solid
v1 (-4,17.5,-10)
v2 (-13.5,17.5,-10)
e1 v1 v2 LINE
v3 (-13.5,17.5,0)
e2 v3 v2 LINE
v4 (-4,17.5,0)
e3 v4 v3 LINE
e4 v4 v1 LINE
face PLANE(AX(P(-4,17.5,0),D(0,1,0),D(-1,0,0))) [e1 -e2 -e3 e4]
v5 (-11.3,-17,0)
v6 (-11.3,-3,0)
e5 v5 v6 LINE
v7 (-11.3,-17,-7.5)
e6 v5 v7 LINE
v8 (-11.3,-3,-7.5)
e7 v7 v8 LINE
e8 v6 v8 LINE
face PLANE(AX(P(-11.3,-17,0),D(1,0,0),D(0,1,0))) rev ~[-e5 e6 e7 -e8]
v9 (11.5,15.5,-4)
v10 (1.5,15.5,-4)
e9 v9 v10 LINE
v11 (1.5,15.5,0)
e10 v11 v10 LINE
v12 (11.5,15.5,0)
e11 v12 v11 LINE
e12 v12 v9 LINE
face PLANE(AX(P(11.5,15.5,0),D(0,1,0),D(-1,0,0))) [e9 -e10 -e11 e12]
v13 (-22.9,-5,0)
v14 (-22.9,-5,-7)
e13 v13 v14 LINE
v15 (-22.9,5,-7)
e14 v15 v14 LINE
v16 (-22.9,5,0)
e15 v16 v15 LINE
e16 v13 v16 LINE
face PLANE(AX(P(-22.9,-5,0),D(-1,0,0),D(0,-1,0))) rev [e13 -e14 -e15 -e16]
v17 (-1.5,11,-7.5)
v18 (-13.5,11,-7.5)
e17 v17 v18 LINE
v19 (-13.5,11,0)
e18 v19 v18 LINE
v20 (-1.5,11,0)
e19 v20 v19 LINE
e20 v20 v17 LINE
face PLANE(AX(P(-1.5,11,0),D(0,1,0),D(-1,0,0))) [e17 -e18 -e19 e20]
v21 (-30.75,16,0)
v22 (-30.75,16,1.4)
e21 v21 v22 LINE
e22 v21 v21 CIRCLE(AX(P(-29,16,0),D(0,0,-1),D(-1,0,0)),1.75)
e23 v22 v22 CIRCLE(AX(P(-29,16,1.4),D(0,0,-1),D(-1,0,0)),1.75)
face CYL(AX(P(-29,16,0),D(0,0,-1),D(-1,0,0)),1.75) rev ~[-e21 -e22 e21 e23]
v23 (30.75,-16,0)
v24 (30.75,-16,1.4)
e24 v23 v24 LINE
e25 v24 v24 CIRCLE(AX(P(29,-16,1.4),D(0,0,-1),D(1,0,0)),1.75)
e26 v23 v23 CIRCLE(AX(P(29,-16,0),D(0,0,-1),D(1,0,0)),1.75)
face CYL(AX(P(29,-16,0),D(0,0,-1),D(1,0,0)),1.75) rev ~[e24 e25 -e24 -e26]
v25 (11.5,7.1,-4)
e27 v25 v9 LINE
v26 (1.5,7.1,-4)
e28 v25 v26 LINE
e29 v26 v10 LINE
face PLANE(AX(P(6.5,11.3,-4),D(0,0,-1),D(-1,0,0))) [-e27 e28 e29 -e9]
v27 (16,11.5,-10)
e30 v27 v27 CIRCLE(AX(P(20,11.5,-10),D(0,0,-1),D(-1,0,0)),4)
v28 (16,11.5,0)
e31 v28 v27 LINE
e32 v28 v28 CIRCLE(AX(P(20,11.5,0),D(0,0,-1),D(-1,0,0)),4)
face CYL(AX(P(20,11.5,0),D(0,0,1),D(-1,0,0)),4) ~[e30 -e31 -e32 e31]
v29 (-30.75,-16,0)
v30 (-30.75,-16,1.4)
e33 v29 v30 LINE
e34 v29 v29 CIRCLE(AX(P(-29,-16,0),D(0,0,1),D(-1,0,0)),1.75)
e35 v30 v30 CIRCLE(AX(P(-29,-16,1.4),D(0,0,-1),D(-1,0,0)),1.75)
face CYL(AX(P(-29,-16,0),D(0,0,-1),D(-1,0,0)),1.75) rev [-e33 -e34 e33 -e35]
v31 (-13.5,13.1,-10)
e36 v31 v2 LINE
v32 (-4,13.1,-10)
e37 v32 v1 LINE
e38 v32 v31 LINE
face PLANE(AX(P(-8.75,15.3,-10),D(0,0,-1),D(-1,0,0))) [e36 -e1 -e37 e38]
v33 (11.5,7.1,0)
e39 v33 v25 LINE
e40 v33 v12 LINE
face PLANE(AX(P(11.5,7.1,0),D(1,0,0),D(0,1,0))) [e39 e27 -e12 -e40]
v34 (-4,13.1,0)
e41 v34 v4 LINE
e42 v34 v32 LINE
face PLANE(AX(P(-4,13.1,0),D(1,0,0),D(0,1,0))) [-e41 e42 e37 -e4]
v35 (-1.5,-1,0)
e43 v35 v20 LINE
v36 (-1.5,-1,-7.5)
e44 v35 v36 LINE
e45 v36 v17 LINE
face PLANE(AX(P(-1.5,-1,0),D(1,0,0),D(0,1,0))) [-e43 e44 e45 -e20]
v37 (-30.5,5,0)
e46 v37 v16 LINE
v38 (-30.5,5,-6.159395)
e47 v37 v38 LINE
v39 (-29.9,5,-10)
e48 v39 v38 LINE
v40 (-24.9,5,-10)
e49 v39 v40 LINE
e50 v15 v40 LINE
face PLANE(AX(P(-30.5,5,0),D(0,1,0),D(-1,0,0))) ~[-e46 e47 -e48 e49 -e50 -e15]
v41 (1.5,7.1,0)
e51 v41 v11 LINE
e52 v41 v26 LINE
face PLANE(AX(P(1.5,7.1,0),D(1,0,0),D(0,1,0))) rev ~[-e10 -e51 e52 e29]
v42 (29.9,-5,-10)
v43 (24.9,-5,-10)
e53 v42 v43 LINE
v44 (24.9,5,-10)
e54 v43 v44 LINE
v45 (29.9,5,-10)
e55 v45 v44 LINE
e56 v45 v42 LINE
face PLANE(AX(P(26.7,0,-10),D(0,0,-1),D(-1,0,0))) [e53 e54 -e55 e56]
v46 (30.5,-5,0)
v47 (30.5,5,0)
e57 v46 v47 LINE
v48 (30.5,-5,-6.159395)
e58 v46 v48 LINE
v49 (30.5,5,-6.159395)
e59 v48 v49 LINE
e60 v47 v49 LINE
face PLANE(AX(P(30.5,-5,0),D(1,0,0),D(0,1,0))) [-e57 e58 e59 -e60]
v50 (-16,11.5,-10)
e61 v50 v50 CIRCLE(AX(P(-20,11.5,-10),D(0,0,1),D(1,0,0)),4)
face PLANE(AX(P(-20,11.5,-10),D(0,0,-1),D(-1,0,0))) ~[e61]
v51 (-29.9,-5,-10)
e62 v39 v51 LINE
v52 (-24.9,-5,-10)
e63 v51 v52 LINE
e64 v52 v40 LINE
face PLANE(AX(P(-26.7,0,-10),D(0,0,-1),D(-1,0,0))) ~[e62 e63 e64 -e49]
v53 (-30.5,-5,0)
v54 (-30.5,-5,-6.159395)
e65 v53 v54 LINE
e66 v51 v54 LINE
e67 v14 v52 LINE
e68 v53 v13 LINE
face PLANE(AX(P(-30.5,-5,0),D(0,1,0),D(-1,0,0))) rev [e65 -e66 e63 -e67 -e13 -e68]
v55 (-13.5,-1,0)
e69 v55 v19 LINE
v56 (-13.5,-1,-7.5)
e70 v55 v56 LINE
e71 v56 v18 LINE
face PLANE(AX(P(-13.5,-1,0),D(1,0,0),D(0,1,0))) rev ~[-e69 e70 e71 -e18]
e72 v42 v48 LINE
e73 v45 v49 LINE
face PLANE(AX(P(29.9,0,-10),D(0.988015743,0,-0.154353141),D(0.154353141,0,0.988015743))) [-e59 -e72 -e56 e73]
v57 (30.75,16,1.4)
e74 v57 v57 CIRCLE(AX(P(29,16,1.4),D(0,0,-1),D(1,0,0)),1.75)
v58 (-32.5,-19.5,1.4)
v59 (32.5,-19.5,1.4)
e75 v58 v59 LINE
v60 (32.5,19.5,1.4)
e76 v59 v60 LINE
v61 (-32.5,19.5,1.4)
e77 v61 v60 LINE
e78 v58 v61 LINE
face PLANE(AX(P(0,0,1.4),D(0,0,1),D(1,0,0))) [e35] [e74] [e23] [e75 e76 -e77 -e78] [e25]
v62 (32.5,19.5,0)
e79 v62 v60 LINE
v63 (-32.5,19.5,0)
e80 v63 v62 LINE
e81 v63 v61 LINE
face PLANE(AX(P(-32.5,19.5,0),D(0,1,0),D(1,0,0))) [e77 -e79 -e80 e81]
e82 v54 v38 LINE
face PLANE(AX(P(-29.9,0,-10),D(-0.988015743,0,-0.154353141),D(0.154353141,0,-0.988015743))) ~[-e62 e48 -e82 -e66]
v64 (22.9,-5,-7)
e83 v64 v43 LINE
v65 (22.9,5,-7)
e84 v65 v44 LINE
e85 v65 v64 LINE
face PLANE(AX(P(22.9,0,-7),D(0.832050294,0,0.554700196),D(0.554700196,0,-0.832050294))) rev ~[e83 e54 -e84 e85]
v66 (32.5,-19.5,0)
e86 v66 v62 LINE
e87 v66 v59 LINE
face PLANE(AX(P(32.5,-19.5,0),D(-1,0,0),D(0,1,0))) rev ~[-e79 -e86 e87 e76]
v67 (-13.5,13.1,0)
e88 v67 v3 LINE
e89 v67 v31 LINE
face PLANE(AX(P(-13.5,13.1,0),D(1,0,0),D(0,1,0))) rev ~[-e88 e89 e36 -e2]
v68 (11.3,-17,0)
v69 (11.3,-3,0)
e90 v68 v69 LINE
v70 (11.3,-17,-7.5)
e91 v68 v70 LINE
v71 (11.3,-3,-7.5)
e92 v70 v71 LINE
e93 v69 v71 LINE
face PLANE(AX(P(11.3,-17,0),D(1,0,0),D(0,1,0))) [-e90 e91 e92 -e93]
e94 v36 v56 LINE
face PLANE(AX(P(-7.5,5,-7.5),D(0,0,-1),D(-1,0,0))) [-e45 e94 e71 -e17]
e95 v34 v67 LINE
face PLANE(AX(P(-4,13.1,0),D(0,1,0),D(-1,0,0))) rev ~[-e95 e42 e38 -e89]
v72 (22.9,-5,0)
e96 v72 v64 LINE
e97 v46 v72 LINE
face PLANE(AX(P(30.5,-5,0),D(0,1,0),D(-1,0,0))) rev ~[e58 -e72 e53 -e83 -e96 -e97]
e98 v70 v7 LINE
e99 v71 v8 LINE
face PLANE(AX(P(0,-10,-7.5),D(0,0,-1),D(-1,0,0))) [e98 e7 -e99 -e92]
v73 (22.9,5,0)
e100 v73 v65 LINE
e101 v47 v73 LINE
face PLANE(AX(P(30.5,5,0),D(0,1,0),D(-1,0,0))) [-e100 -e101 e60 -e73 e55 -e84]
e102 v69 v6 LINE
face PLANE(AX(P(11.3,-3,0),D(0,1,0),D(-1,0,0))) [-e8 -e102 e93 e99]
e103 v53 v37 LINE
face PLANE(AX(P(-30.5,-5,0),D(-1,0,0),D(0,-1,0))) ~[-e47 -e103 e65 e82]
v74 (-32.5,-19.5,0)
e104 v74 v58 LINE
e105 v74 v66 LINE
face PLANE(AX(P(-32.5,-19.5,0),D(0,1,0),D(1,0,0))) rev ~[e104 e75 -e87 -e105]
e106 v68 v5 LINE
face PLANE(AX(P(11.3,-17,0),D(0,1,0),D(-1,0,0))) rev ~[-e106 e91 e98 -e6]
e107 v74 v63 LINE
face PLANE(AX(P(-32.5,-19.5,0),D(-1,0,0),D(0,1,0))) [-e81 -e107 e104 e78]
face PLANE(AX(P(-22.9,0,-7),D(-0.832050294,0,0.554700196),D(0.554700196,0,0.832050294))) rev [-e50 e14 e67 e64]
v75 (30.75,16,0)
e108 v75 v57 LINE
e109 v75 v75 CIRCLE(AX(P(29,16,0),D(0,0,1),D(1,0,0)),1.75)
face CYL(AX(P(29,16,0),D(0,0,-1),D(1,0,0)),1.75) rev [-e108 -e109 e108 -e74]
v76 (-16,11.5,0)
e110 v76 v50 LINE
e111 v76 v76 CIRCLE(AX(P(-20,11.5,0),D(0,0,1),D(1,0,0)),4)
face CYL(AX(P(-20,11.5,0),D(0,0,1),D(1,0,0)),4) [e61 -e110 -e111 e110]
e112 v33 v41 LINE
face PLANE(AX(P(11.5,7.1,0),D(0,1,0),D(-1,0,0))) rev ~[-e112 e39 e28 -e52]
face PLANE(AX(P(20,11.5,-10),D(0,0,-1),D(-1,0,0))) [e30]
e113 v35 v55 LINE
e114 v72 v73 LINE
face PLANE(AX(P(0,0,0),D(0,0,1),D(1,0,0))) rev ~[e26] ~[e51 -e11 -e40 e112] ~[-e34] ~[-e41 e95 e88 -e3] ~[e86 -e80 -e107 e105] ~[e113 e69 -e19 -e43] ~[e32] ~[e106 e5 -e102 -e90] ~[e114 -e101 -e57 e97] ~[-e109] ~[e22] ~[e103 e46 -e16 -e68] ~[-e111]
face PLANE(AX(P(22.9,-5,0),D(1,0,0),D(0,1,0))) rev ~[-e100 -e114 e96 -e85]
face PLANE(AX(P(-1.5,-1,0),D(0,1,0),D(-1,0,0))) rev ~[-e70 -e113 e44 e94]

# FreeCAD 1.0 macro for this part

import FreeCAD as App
import Part
import Sketcher

V = App.Vector
Q = App.Units.Quantity

doc = App.newDocument("Part")
body = doc.addObject("PartDesign::Body", "Body")

sketch1 = body.newObject("Sketcher::SketchObject", "Sketch")
sketch1.AttachmentSupport = (doc.getObject("XY_Plane"), [""])
sketch1.MapMode = "FlatFace"
sketch1.addGeometry([
    Part.LineSegment(V(-32, 20, 0), V(-32, -20, 0)),
    Part.LineSegment(V(-32, -20, 0), V(32, -20, 0)),
    Part.LineSegment(V(32, -20, 0), V(32, 20, 0)),
    Part.LineSegment(V(32, 20, 0), V(-32, 20, 0)),
], False)
sketch1.addConstraint([
    Sketcher.Constraint("Coincident", 0, 2, 1, 1),
    Sketcher.Constraint("Coincident", 1, 2, 2, 1),
    Sketcher.Constraint("Coincident", 2, 2, 3, 1),
    Sketcher.Constraint("Coincident", 3, 2, 0, 1),
    Sketcher.Constraint("Vertical", 0),
    Sketcher.Constraint("Horizontal", 1),
    Sketcher.Constraint("Vertical", 2),
    Sketcher.Constraint("Horizontal", 3),
    Sketcher.Constraint("Symmetric", 0, 2, 2, 2, -1, 1),
    Sketcher.Constraint("DistanceX", 1, 1, 1, 2, Q("65 mm")),
    Sketcher.Constraint("DistanceY", 0, 2, 0, 1, Q("39 mm")),
])
pad1 = body.newObject("PartDesign::Pad", "Pad")
pad1.Profile = sketch1
pad1.Length = 1.4

sketch2 = body.newObject("Sketcher::SketchObject", "Sketch001")
sketch2.AttachmentSupport = (doc.getObject("XY_Plane"), [""])
sketch2.MapMode = "FlatFace"
sketch2.addGeometry(Part.Circle(V(29, 16, 0), V(0, 0, 1), 1.8), False)
sketch2.addConstraint([
    Sketcher.Constraint("Diameter", 0, Q("3.5 mm")),
    Sketcher.Constraint("DistanceX", -1, 1, 0, 3, Q("29 mm")),
    Sketcher.Constraint("DistanceY", -1, 1, 0, 3, Q("16 mm")),
])
pocket1 = body.newObject("PartDesign::Pocket", "Pocket")
pocket1.Profile = sketch2
pocket1.Type = "ThroughAll"
pocket1.Reversed = True

sketch3 = body.newObject("Sketcher::SketchObject", "Sketch002")
sketch3.AttachmentSupport = (doc.getObject("XY_Plane"), [""])
sketch3.MapMode = "FlatFace"
sketch3.addGeometry(Part.Circle(V(-29, 16, 0), V(0, 0, 1), 1.8), False)
sketch3.addConstraint([
    Sketcher.Constraint("Diameter", 0, Q("3.5 mm")),
    Sketcher.Constraint("DistanceX", 0, 3, -1, 1, Q("29 mm")),
    Sketcher.Constraint("DistanceY", -1, 1, 0, 3, Q("16 mm")),
])
pocket2 = body.newObject("PartDesign::Pocket", "Pocket001")
pocket2.Profile = sketch3
pocket2.Type = "ThroughAll"
pocket2.Reversed = True
doc.recompute()

mirrored = body.newObject("PartDesign::Mirrored", "Mirrored")
mirrored.Originals = [pocket1, pocket2]
mirrored.MirrorPlane = (doc.getObject("XZ_Plane"), [""])
body.Tip = mirrored

sketch4 = body.newObject("Sketcher::SketchObject", "Sketch003")
sketch4.AttachmentSupport = (doc.getObject("XY_Plane"), [""])
sketch4.MapMode = "FlatFace"
sketch4.addGeometry([
    Part.LineSegment(V(30, 5, 0), V(30, -5, 0)),
    Part.LineSegment(V(30, -5, 0), V(23, -5, 0)),
    Part.LineSegment(V(23, -5, 0), V(23, 5, 0)),
    Part.LineSegment(V(23, 5, 0), V(30, 5, 0)),
], False)
sketch4.addConstraint([
    Sketcher.Constraint("Coincident", 0, 2, 1, 1),
    Sketcher.Constraint("Coincident", 1, 2, 2, 1),
    Sketcher.Constraint("Coincident", 2, 2, 3, 1),
    Sketcher.Constraint("Coincident", 3, 2, 0, 1),
    Sketcher.Constraint("Vertical", 0),
    Sketcher.Constraint("Horizontal", 1),
    Sketcher.Constraint("Vertical", 2),
    Sketcher.Constraint("Horizontal", 3),
    Sketcher.Constraint("DistanceY", 0, 2, 0, 1, Q("10 mm")),
    Sketcher.Constraint("DistanceX", 1, 2, 1, 1, Q("7.6 mm")),
    Sketcher.Constraint("DistanceY", 0, 2, -1, 1, Q("5 mm")),
    Sketcher.Constraint("DistanceX", -1, 1, 0, 2, Q("30.5 mm")),
])
pad2 = body.newObject("PartDesign::Pad", "Pad001")
pad2.Profile = sketch4
pad2.Length = 10
pad2.Reversed = True

sketch5 = body.newObject("Sketcher::SketchObject", "Sketch004")
sketch5.AttachmentSupport = (doc.getObject("XZ_Plane"), [""])
sketch5.MapMode = "FlatFace"
sketch5.addGeometry([
    Part.LineSegment(V(24.9, -10, 0), V(22.9, -7, 0)),
    Part.LineSegment(V(22.9, -7, 0), V(22.9, -10, 0)),
    Part.LineSegment(V(22.9, -10, 0), V(24.9, -10, 0)),
    Part.LineSegment(V(30.5, -6.2, 0), V(29.9, -10, 0)),
    Part.LineSegment(V(29.9, -10, 0), V(30.5, -10, 0)),
    Part.LineSegment(V(30.5, -10, 0), V(30.5, -6.2, 0)),
], False)
sketch5.addConstraint([
    Sketcher.Constraint("Coincident", 0, 2, 1, 1),
    Sketcher.Constraint("Coincident", 1, 2, 2, 1),
    Sketcher.Constraint("Coincident", 2, 2, 0, 1),
    Sketcher.Constraint("Coincident", 3, 2, 4, 1),
    Sketcher.Constraint("Coincident", 4, 2, 5, 1),
    Sketcher.Constraint("Coincident", 5, 2, 3, 1),
    Sketcher.Constraint("Vertical", 1),
    Sketcher.Constraint("Horizontal", 2),
    Sketcher.Constraint("Horizontal", 4),
    Sketcher.Constraint("Vertical", 5),
    Sketcher.Constraint("Horizontal", 2, 2, 3, 2),
    Sketcher.Constraint("DistanceX", 2, 1, 2, 2, Q("2 mm")),
    Sketcher.Constraint("DistanceY", 1, 2, 1, 1, Q("3 mm")),
    Sketcher.Constraint("DistanceX", 4, 1, 4, 2, Q("0.6 mm")),
    Sketcher.Constraint("DistanceY", 0, 2, -1, 1, Q("7 mm")),
    Sketcher.Constraint("DistanceX", 2, 2, 3, 2, Q("5 mm")),
    Sketcher.Constraint("DistanceX", -1, 1, 0, 2, Q("22.9 mm")),
    Sketcher.Constraint("Distance", 3, Q("3.88719 mm")),
])
pocket3 = body.newObject("PartDesign::Pocket", "Pocket002")
pocket3.Profile = sketch5
pocket3.Length = 10
pocket3.Midplane = True

sketch6 = body.newObject("Sketcher::SketchObject", "Sketch005")
sketch6.AttachmentSupport = (doc.getObject("XY_Plane"), [""])
sketch6.MapMode = "FlatFace"
sketch6.addGeometry([
    Part.LineSegment(V(11, -3, 0), V(11, -17, 0)),
    Part.LineSegment(V(11, -17, 0), V(-11, -17, 0)),
    Part.LineSegment(V(-11, -17, 0), V(-11, -3, 0)),
    Part.LineSegment(V(-11, -3, 0), V(11, -3, 0)),
], False)
sketch6.addConstraint([
    Sketcher.Constraint("Coincident", 0, 2, 1, 1),
    Sketcher.Constraint("Coincident", 1, 2, 2, 1),
    Sketcher.Constraint("Coincident", 2, 2, 3, 1),
    Sketcher.Constraint("Coincident", 3, 2, 0, 1),
    Sketcher.Constraint("Vertical", 0),
    Sketcher.Constraint("Horizontal", 1),
    Sketcher.Constraint("Vertical", 2),
    Sketcher.Constraint("Horizontal", 3),
    Sketcher.Constraint("DistanceY", 0, 2, 0, 1, Q("14 mm")),
    Sketcher.Constraint("DistanceX", 1, 2, 1, 1, Q("22.6 mm")),
    Sketcher.Constraint("DistanceY", 0, 2, -1, 1, Q("17 mm")),
    Sketcher.Constraint("DistanceX", -1, 1, 0, 2, Q("11.3 mm")),
])
pad3 = body.newObject("PartDesign::Pad", "Pad002")
pad3.Profile = sketch6
pad3.Length = 7.5
pad3.Reversed = True

sketch7 = body.newObject("Sketcher::SketchObject", "Sketch006")
sketch7.AttachmentSupport = (doc.getObject("XY_Plane"), [""])
sketch7.MapMode = "FlatFace"
sketch7.addGeometry(Part.Circle(V(20, 11.5, 0), V(0, 0, 1), 4), False)
sketch7.addConstraint([
    Sketcher.Constraint("Diameter", 0, Q("8 mm")),
    Sketcher.Constraint("DistanceX", -1, 1, 0, 3, Q("20 mm")),
    Sketcher.Constraint("DistanceY", -1, 1, 0, 3, Q("11.5 mm")),
])
pad4 = body.newObject("PartDesign::Pad", "Pad003")
pad4.Profile = sketch7
pad4.Length = 10
pad4.Reversed = True
doc.recompute()

mirrored2 = body.newObject("PartDesign::Mirrored", "Mirrored001")
mirrored2.Originals = [pad2, pocket3, pad4]
mirrored2.MirrorPlane = (doc.getObject("YZ_Plane"), [""])
body.Tip = mirrored2

sketch8 = body.newObject("Sketcher::SketchObject", "Sketch007")
sketch8.AttachmentSupport = (doc.getObject("XY_Plane"), [""])
sketch8.MapMode = "FlatFace"
sketch8.addGeometry([
    Part.LineSegment(V(-2, 11, 0), V(-2, -1, 0)),
    Part.LineSegment(V(-2, -1, 0), V(-14, -1, 0)),
    Part.LineSegment(V(-14, -1, 0), V(-14, 11, 0)),
    Part.LineSegment(V(-14, 11, 0), V(-2, 11, 0)),
], False)
sketch8.addConstraint([
    Sketcher.Constraint("Coincident", 0, 2, 1, 1),
    Sketcher.Constraint("Coincident", 1, 2, 2, 1),
    Sketcher.Constraint("Coincident", 2, 2, 3, 1),
    Sketcher.Constraint("Coincident", 3, 2, 0, 1),
    Sketcher.Constraint("Vertical", 0),
    Sketcher.Constraint("Horizontal", 1),
    Sketcher.Constraint("Vertical", 2),
    Sketcher.Constraint("Horizontal", 3),
    Sketcher.Constraint("Equal", 3, 0),
    Sketcher.Constraint("DistanceX", 1, 2, 1, 1, Q("12 mm")),
    Sketcher.Constraint("DistanceY", 0, 2, -1, 1, Q("1 mm")),
    Sketcher.Constraint("DistanceX", 0, 2, -1, 1, Q("1.5 mm")),
])
pad5 = body.newObject("PartDesign::Pad", "Pad004")
pad5.Profile = sketch8
pad5.Length = 7.5
pad5.Reversed = True

sketch9 = body.newObject("Sketcher::SketchObject", "Sketch008")
sketch9.AttachmentSupport = (doc.getObject("XY_Plane"), [""])
sketch9.MapMode = "FlatFace"
sketch9.addGeometry([
    Part.LineSegment(V(-4, 17.5, 0), V(-4, 13.1, 0)),
    Part.LineSegment(V(-4, 13.1, 0), V(-13.5, 13.1, 0)),
    Part.LineSegment(V(-13.5, 13.1, 0), V(-13.5, 17.5, 0)),
    Part.LineSegment(V(-13.5, 17.5, 0), V(-4, 17.5, 0)),
], False)
sketch9.addConstraint([
    Sketcher.Constraint("Coincident", 0, 2, 1, 1),
    Sketcher.Constraint("Coincident", 1, 2, 2, 1),
    Sketcher.Constraint("Coincident", 2, 2, 3, 1),
    Sketcher.Constraint("Coincident", 3, 2, 0, 1),
    Sketcher.Constraint("Vertical", 0),
    Sketcher.Constraint("Horizontal", 1),
    Sketcher.Constraint("Vertical", 2),
    Sketcher.Constraint("Horizontal", 3),
    Sketcher.Constraint("DistanceX", 1, 2, 1, 1, Q("9.5 mm")),
    Sketcher.Constraint("DistanceY", 0, 2, 0, 1, Q("4.4 mm")),
    Sketcher.Constraint("DistanceX", 0, 2, -1, 1, Q("4 mm")),
    Sketcher.Constraint("DistanceY", -1, 1, 0, 2, Q("13.1 mm")),
])
pad6 = body.newObject("PartDesign::Pad", "Pad005")
pad6.Profile = sketch9
pad6.Length = 10
pad6.Reversed = True

sketch10 = body.newObject("Sketcher::SketchObject", "Sketch009")
sketch10.AttachmentSupport = (doc.getObject("XY_Plane"), [""])
sketch10.MapMode = "FlatFace"
sketch10.addGeometry([
    Part.LineSegment(V(12, 16, 0), V(12, 7, 0)),
    Part.LineSegment(V(12, 7, 0), V(2, 7, 0)),
    Part.LineSegment(V(2, 7, 0), V(2, 16, 0)),
    Part.LineSegment(V(2, 16, 0), V(12, 16, 0)),
], False)
sketch10.addConstraint([
    Sketcher.Constraint("Coincident", 0, 2, 1, 1),
    Sketcher.Constraint("Coincident", 1, 2, 2, 1),
    Sketcher.Constraint("Coincident", 2, 2, 3, 1),
    Sketcher.Constraint("Coincident", 3, 2, 0, 1),
    Sketcher.Constraint("Vertical", 0),
    Sketcher.Constraint("Horizontal", 1),
    Sketcher.Constraint("Vertical", 2),
    Sketcher.Constraint("Horizontal", 3),
    Sketcher.Constraint("DistanceX", 1, 2, 1, 1, Q("10 mm")),
    Sketcher.Constraint("DistanceY", 0, 2, 0, 1, Q("8.4 mm")),
    Sketcher.Constraint("DistanceX", -1, 1, 0, 2, Q("11.5 mm")),
    Sketcher.Constraint("DistanceY", -1, 1, 0, 2, Q("7.1 mm")),
])
pad7 = body.newObject("PartDesign::Pad", "Pad006")
pad7.Profile = sketch10
pad7.Length = 4
pad7.Reversed = True

doc.recompute()
